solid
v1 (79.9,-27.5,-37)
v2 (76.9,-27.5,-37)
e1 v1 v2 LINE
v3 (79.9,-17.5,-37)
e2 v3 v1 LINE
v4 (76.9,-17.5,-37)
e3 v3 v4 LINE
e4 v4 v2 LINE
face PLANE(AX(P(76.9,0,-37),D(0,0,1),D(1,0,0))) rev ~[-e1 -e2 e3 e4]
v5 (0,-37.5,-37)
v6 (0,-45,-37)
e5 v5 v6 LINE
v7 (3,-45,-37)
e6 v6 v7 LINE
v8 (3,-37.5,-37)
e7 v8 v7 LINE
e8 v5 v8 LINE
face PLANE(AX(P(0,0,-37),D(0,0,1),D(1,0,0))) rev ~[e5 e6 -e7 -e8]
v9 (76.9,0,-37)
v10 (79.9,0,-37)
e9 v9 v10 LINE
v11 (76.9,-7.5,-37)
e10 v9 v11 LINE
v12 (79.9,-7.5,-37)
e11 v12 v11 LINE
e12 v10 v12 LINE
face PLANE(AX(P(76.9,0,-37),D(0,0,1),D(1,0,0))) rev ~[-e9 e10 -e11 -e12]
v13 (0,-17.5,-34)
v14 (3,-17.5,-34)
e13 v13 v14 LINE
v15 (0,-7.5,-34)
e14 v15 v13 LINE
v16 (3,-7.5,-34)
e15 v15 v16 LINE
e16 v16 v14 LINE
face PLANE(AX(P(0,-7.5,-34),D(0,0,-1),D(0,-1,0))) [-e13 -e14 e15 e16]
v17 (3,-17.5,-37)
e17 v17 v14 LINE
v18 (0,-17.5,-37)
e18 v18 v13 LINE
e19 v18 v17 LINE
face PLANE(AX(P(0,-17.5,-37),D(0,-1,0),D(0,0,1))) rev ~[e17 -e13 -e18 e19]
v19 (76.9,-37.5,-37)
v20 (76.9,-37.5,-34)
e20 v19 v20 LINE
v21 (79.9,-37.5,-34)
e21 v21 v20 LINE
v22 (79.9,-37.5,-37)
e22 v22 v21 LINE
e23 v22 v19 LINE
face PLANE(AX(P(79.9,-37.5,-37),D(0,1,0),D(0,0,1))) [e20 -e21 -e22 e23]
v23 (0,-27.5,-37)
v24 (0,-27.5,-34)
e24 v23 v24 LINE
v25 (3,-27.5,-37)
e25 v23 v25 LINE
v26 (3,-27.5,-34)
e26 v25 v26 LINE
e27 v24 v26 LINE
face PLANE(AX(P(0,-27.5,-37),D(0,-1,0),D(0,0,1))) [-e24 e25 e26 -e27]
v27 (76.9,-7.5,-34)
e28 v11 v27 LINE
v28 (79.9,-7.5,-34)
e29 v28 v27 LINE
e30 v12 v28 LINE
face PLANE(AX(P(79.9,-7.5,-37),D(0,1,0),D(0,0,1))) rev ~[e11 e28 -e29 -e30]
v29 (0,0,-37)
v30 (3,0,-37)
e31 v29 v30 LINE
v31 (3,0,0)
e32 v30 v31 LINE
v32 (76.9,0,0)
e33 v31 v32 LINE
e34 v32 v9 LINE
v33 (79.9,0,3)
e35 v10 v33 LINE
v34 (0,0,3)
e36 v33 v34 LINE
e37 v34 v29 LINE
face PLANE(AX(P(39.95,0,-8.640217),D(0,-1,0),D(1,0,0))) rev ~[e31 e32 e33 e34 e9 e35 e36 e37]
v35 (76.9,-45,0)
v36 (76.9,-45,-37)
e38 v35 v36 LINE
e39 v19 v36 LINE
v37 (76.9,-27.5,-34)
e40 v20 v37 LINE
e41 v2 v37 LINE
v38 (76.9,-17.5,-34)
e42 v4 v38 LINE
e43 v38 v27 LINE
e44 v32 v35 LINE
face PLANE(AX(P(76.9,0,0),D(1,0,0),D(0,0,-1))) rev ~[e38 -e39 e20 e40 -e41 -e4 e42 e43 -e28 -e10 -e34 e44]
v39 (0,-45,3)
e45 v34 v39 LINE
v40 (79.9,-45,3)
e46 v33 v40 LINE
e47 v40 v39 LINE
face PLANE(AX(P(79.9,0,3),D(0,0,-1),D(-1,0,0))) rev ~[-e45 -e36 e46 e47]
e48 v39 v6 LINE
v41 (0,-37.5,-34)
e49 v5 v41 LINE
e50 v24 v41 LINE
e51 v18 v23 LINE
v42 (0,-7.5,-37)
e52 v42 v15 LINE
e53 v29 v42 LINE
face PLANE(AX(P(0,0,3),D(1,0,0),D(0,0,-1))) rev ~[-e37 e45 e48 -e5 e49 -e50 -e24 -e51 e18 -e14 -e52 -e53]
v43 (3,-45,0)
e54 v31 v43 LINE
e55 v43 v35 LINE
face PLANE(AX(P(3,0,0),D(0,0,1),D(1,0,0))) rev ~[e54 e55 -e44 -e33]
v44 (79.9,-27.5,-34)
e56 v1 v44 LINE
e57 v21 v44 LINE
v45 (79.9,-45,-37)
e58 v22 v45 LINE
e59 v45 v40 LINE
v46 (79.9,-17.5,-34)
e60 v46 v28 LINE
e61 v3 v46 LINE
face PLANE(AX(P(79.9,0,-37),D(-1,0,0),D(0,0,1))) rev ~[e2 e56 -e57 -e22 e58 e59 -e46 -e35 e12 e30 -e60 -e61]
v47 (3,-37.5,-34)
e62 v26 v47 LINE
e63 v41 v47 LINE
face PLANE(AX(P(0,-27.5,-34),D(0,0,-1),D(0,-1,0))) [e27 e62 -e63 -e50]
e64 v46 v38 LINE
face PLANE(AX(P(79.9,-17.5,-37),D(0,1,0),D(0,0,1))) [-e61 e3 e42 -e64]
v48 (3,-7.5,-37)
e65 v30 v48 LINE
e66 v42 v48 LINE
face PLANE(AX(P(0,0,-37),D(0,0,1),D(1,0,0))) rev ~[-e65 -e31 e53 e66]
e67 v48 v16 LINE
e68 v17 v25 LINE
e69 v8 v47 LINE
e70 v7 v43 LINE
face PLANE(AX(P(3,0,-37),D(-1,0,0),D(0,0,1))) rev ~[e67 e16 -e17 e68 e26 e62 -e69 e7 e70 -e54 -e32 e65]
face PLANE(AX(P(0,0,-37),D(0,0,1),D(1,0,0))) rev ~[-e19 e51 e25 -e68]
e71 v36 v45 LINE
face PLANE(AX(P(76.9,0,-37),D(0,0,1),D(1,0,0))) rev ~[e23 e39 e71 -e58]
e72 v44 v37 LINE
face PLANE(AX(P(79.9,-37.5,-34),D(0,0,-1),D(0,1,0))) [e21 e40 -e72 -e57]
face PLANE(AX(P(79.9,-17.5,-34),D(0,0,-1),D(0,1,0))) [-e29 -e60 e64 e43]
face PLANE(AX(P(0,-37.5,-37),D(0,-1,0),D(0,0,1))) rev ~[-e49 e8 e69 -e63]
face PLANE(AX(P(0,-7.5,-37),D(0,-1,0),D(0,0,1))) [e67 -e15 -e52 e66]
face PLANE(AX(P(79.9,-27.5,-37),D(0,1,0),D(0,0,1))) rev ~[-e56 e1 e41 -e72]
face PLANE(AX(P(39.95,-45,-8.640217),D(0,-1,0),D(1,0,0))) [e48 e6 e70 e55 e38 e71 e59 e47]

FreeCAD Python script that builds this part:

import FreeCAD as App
import Part
import Sketcher

V = App.Vector

doc = App.newDocument("Part")
body = doc.addObject("PartDesign::Body", "Body")

# Sketch on XZ plane
sketch1 = body.newObject("Sketcher::SketchObject", "Sketch")
sketch1.AttachmentSupport = (doc.getObject("XZ_Plane"), [""])
sketch1.MapMode = "FlatFace"
sketch1.addGeometry([
    Part.LineSegment(V(79.9, 3, 0), V(0, 3, 0)),  # 0
    Part.LineSegment(V(0, 3, 0), V(0, -37, 0)),  # 1
    Part.LineSegment(V(0, -37, 0), V(3, -37, 0)),  # 2
    Part.LineSegment(V(3, -37, 0), V(3, 0, 0)),  # 3
    Part.LineSegment(V(3, 0, 0), V(76.9, 0, 0)),  # 4
    Part.LineSegment(V(76.9, 0, 0), V(76.9, -37, 0)),  # 5
    Part.LineSegment(V(76.9, -37, 0), V(79.9, -37, 0)),  # 6
    Part.LineSegment(V(79.9, -37, 0), V(79.9, 3, 0)),  # 7
], False)
sketch1.addConstraint([
    Sketcher.Constraint("Coincident", 0, 2, 1, 1),
    Sketcher.Constraint("Coincident", 1, 2, 2, 1),
    Sketcher.Constraint("Coincident", 2, 2, 3, 1),
    Sketcher.Constraint("Coincident", 3, 2, 4, 1),
    Sketcher.Constraint("Coincident", 4, 2, 5, 1),
    Sketcher.Constraint("Coincident", 5, 2, 6, 1),
    Sketcher.Constraint("Coincident", 6, 2, 7, 1),
    Sketcher.Constraint("Coincident", 7, 2, 0, 1),
    Sketcher.Constraint("Horizontal", 0),
    Sketcher.Constraint("Vertical", 1),
    Sketcher.Constraint("Horizontal", 2),
    Sketcher.Constraint("Vertical", 3),
    Sketcher.Constraint("Horizontal", 4),
    Sketcher.Constraint("Vertical", 5),
    Sketcher.Constraint("Horizontal", 6),
    Sketcher.Constraint("Vertical", 7),
    Sketcher.Constraint("PointOnObject", 0, 2, -2),
    Sketcher.Constraint("PointOnObject", 3, 2, -1),
    Sketcher.Constraint("Horizontal", 2, 2, 5, 2),
    Sketcher.Constraint("Equal", 2, 6),
    Sketcher.Constraint("DistanceX", 2, 1, 2, 2, 3.0),
    Sketcher.Constraint("DistanceY", 1, 2, 1, 1, 40.0),
    Sketcher.Constraint("DistanceY", 3, 1, 3, 2, 37.0),
    Sketcher.Constraint("DistanceX", 0, 2, 0, 1, 79.9),
])
pad1 = body.newObject("PartDesign::Pad", "Pad")
pad1.Profile = sketch1
pad1.Length = 45

# Sketch on YZ plane
sketch2 = body.newObject("Sketcher::SketchObject", "Sketch001")
sketch2.AttachmentSupport = (doc.getObject("YZ_Plane"), [""])
sketch2.MapMode = "FlatFace"
sketch2.AttachmentOffset = App.Placement(V(0, 0, 79.9), App.Rotation())
sketch2.addGeometry([
    Part.LineSegment(V(-37.5, -34, 0), V(-37.5, -37, 0)),  # 0
    Part.LineSegment(V(-37.5, -37, 0), V(-27.5, -37, 0)),  # 1
    Part.LineSegment(V(-27.5, -37, 0), V(-27.5, -34, 0)),  # 2
    Part.LineSegment(V(-27.5, -34, 0), V(-37.5, -34, 0)),  # 3
    Part.LineSegment(V(-17.5, -34, 0), V(-17.5, -37, 0)),  # 4
    Part.LineSegment(V(-17.5, -37, 0), V(-7.5, -37, 0)),  # 5
    Part.LineSegment(V(-7.5, -37, 0), V(-7.5, -34, 0)),  # 6
    Part.LineSegment(V(-7.5, -34, 0), V(-17.5, -34, 0)),  # 7
], False)
sketch2.addConstraint([
    Sketcher.Constraint("Coincident", 0, 2, 1, 1),
    Sketcher.Constraint("Coincident", 1, 2, 2, 1),
    Sketcher.Constraint("Coincident", 2, 2, 3, 1),
    Sketcher.Constraint("Coincident", 3, 2, 0, 1),
    Sketcher.Constraint("Coincident", 4, 2, 5, 1),
    Sketcher.Constraint("Coincident", 5, 2, 6, 1),
    Sketcher.Constraint("Coincident", 6, 2, 7, 1),
    Sketcher.Constraint("Coincident", 7, 2, 4, 1),
    Sketcher.Constraint("Vertical", 0),
    Sketcher.Constraint("Horizontal", 1),
    Sketcher.Constraint("Vertical", 2),
    Sketcher.Constraint("Horizontal", 3),
    Sketcher.Constraint("Vertical", 4),
    Sketcher.Constraint("Horizontal", 5),
    Sketcher.Constraint("Vertical", 6),
    Sketcher.Constraint("Horizontal", 7),
    Sketcher.Constraint("Horizontal", 1, 2, 4, 2),
    Sketcher.Constraint("Horizontal", 3, 2, 6, 2),
    Sketcher.Constraint("Equal", 3, 5),
    Sketcher.Constraint("DistanceX", 1, 1, 1, 2, 10.0),
    Sketcher.Constraint("DistanceY", 0, 2, 0, 1, 3.0),
    Sketcher.Constraint("DistanceY", 0, 2, -1, 1, 37.0),
    Sketcher.Constraint("DistanceX", 1, 2, 4, 2, 10.0),
    Sketcher.Constraint("DistanceX", 0, 2, -1, 1, 37.5),
])
pocket1 = body.newObject("PartDesign::Pocket", "Pocket")
pocket1.Profile = sketch2
pocket1.Length = 25

# Sketch on YZ plane
sketch3 = body.newObject("Sketcher::SketchObject", "Sketch002")
sketch3.AttachmentSupport = (doc.getObject("YZ_Plane"), [""])
sketch3.MapMode = "FlatFace"
sketch3.addGeometry([
    Part.LineSegment(V(-7.5, -34, 0), V(-7.5, -37, 0)),  # 0
    Part.LineSegment(V(-7.5, -37, 0), V(-17.5, -37, 0)),  # 1
    Part.LineSegment(V(-17.5, -37, 0), V(-17.5, -34, 0)),  # 2
    Part.LineSegment(V(-17.5, -34, 0), V(-7.5, -34, 0)),  # 3
    Part.LineSegment(V(-27.5, -34, 0), V(-27.5, -37, 0)),  # 4
    Part.LineSegment(V(-27.5, -37, 0), V(-37.5, -37, 0)),  # 5
    Part.LineSegment(V(-37.5, -37, 0), V(-37.5, -34, 0)),  # 6
    Part.LineSegment(V(-37.5, -34, 0), V(-27.5, -34, 0)),  # 7
], False)
sketch3.addConstraint([
    Sketcher.Constraint("Coincident", 0, 2, 1, 1),
    Sketcher.Constraint("Coincident", 1, 2, 2, 1),
    Sketcher.Constraint("Coincident", 2, 2, 3, 1),
    Sketcher.Constraint("Coincident", 3, 2, 0, 1),
    Sketcher.Constraint("Coincident", 4, 2, 5, 1),
    Sketcher.Constraint("Coincident", 5, 2, 6, 1),
    Sketcher.Constraint("Coincident", 6, 2, 7, 1),
    Sketcher.Constraint("Coincident", 7, 2, 4, 1),
    Sketcher.Constraint("Vertical", 0),
    Sketcher.Constraint("Horizontal", 1),
    Sketcher.Constraint("Vertical", 2),
    Sketcher.Constraint("Horizontal", 3),
    Sketcher.Constraint("Vertical", 4),
    Sketcher.Constraint("Horizontal", 5),
    Sketcher.Constraint("Vertical", 6),
    Sketcher.Constraint("Horizontal", 7),
    Sketcher.Constraint("Horizontal", 1, 2, 4, 2),
    Sketcher.Constraint("Horizontal", 3, 2, 6, 2),
    Sketcher.Constraint("Equal", 3, 5),
    Sketcher.Constraint("DistanceX", 1, 2, 1, 1, 10.0),
    Sketcher.Constraint("DistanceY", 0, 2, 0, 1, 3.0),
    Sketcher.Constraint("DistanceY", 0, 2, -1, 1, 37.0),
    Sketcher.Constraint("DistanceX", 4, 2, 1, 2, 10.0),
    Sketcher.Constraint("DistanceX", 0, 2, -1, 1, 7.5),
])
pocket2 = body.newObject("PartDesign::Pocket", "Pocket001")
pocket2.Profile = sketch3
pocket2.Length = 25
pocket2.Reversed = True

doc.recompute()
